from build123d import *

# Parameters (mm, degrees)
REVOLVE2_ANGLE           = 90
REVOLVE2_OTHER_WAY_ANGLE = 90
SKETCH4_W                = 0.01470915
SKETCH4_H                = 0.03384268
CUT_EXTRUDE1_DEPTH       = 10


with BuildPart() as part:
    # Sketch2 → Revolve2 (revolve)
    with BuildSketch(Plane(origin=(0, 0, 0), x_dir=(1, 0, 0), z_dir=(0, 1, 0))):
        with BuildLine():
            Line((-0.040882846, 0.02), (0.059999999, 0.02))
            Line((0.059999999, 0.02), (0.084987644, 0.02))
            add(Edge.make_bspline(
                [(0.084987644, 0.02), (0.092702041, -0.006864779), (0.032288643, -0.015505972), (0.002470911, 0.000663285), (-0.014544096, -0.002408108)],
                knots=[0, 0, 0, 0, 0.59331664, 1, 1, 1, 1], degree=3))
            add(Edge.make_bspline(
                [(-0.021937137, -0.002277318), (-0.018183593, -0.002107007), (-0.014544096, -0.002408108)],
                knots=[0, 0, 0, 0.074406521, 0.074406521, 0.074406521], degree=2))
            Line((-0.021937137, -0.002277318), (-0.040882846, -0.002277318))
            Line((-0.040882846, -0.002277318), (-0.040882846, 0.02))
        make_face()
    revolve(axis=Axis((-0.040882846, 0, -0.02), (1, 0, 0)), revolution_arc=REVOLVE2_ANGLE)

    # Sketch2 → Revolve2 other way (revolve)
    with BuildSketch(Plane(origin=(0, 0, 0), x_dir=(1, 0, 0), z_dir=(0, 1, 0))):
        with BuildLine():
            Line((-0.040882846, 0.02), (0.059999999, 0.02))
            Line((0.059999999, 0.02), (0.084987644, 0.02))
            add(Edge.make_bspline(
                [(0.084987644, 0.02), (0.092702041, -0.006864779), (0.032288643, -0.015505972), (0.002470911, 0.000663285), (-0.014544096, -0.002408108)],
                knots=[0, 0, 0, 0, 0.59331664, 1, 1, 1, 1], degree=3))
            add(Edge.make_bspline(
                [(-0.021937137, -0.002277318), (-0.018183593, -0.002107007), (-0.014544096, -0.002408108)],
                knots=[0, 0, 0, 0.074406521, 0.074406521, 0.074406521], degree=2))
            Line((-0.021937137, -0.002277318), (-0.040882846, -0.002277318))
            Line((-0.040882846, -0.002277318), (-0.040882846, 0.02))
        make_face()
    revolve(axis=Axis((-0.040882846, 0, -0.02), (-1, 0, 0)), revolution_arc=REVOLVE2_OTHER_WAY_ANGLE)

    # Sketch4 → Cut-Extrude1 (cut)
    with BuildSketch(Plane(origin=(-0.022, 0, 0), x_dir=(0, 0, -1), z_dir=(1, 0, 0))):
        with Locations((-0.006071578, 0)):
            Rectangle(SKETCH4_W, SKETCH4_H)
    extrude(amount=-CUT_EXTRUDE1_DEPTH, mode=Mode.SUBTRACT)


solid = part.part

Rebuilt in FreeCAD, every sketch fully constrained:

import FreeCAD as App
import Part
import Sketcher


def add_polygon(sketch, points):
    """Adds a closed chain of lines whose ends are joined by coincident constraints."""
    first, n = sketch.GeometryCount, len(points)
    for a, b in zip(points, points[1:] + points[:1]):
        sketch.addGeometry(Part.LineSegment(App.Vector(*a, 0), App.Vector(*b, 0)), False)
    for i in range(n):
        sketch.addConstraint(Sketcher.Constraint("Coincident", first + i, 2, first + (i + 1) % n, 1))

doc = App.newDocument("Part")
body = doc.addObject("PartDesign::Body", "Body")

# Sketch on XZ plane
sketch1 = body.newObject("Sketcher::SketchObject", "Sketch")
sketch1.AttachmentSupport = (doc.getObject("XZ_Plane"), [""])
sketch1.MapMode = "FlatFace"
sketch1.addGeometry(Part.LineSegment(App.Vector(0.084988, -0.02, 0), App.Vector(-0.040883, -0.02, 0)), False)
sketch1.addGeometry(Part.LineSegment(App.Vector(-0.040883, -0.02, 0), App.Vector(-0.040883, 0.002277, 0)), False)
sketch1.addGeometry(Part.LineSegment(App.Vector(-0.040883, 0.002277, 0), App.Vector(-0.021937, 0.002277, 0)), False)
sketch1.addGeometry(Part.BSplineCurve([App.Vector(-0.021937, 0.002277, 0), App.Vector(-0.018184, 0.002107, 0), App.Vector(-0.014544, 0.002408, 0)], [3, 3], [0, 0.074406521], False, 2, [1, 1, 1], False), False)
sketch1.addGeometry(Part.BSplineCurve([App.Vector(0.084988, -0.02, 0), App.Vector(0.092702, 0.006865, 0), App.Vector(0.032289, 0.015506, 0), App.Vector(0.002471, -0.000663, 0), App.Vector(-0.014544, 0.002408, 0)], [4, 1, 4], [0, 0.59331664, 1], False, 3, [1, 1, 1, 1, 1], False), False)
sketch1.addGeometry(Part.LineSegment(App.Vector(-0.040883, -0.02, 0), App.Vector(0.084988, -0.02, 0)), True)  # axis
sketch1.addConstraint(Sketcher.Constraint("Block", 3))
sketch1.addConstraint(Sketcher.Constraint("Block", 4))
sketch1.addConstraint(Sketcher.Constraint("Coincident", 0, 2, 1, 1))
sketch1.addConstraint(Sketcher.Constraint("Coincident", 1, 2, 2, 1))
sketch1.addConstraint(Sketcher.Constraint("Coincident", 2, 2, 3, 1))
sketch1.addConstraint(Sketcher.Constraint("Coincident", 4, 1, 0, 1))
sketch1.addConstraint(Sketcher.Constraint("Horizontal", 0))
sketch1.addConstraint(Sketcher.Constraint("Vertical", 1))
sketch1.addConstraint(Sketcher.Constraint("Horizontal", 2))
sketch1.addConstraint(Sketcher.Constraint("Horizontal", 5))
sketch1.addConstraint(Sketcher.Constraint("Coincident", 5, 1, 0, 2))
sketch1.addConstraint(Sketcher.Constraint("Equal", 0, 5))
sketch1.addConstraint(Sketcher.Constraint("DistanceX", 0, 2, 0, 1, 0.12587))
revolution = body.newObject("PartDesign::Revolution", "Revolution")
revolution.Profile = sketch1
revolution.ReferenceAxis = (sketch1, ["Axis0"])
revolution.Angle = 90

# Sketch on XZ plane
sketch2 = body.newObject("Sketcher::SketchObject", "Sketch001")
sketch2.AttachmentSupport = (doc.getObject("XZ_Plane"), [""])
sketch2.MapMode = "FlatFace"
sketch2.addGeometry(Part.LineSegment(App.Vector(0.084988, -0.02, 0), App.Vector(-0.040883, -0.02, 0)), False)
sketch2.addGeometry(Part.LineSegment(App.Vector(-0.040883, -0.02, 0), App.Vector(-0.040883, 0.002277, 0)), False)
sketch2.addGeometry(Part.LineSegment(App.Vector(-0.040883, 0.002277, 0), App.Vector(-0.021937, 0.002277, 0)), False)
sketch2.addGeometry(Part.BSplineCurve([App.Vector(-0.021937, 0.002277, 0), App.Vector(-0.018184, 0.002107, 0), App.Vector(-0.014544, 0.002408, 0)], [3, 3], [0, 0.074406521], False, 2, [1, 1, 1], False), False)
sketch2.addGeometry(Part.BSplineCurve([App.Vector(0.084988, -0.02, 0), App.Vector(0.092702, 0.006865, 0), App.Vector(0.032289, 0.015506, 0), App.Vector(0.002471, -0.000663, 0), App.Vector(-0.014544, 0.002408, 0)], [4, 1, 4], [0, 0.59331664, 1], False, 3, [1, 1, 1, 1, 1], False), False)
sketch2.addGeometry(Part.LineSegment(App.Vector(0.084988, -0.02, 0), App.Vector(-0.040883, -0.02, 0)), True)  # axis
sketch2.addConstraint(Sketcher.Constraint("Block", 3))
sketch2.addConstraint(Sketcher.Constraint("Block", 4))
sketch2.addConstraint(Sketcher.Constraint("Coincident", 0, 2, 1, 1))
sketch2.addConstraint(Sketcher.Constraint("Coincident", 1, 2, 2, 1))
sketch2.addConstraint(Sketcher.Constraint("Coincident", 2, 2, 3, 1))
sketch2.addConstraint(Sketcher.Constraint("Coincident", 4, 1, 0, 1))
sketch2.addConstraint(Sketcher.Constraint("Horizontal", 0))
sketch2.addConstraint(Sketcher.Constraint("Vertical", 1))
sketch2.addConstraint(Sketcher.Constraint("Horizontal", 2))
sketch2.addConstraint(Sketcher.Constraint("Horizontal", 5))
sketch2.addConstraint(Sketcher.Constraint("Coincident", 5, 2, 0, 2))
sketch2.addConstraint(Sketcher.Constraint("Equal", 0, 5))
sketch2.addConstraint(Sketcher.Constraint("DistanceX", 0, 2, 0, 1, 0.12587))
revolution2 = body.newObject("PartDesign::Revolution", "Revolution001")
revolution2.Profile = sketch2
revolution2.ReferenceAxis = (sketch2, ["Axis0"])
revolution2.Angle = 90

# Sketch on YZ plane
sketch3 = body.newObject("Sketcher::SketchObject", "Sketch002")
sketch3.AttachmentSupport = (doc.getObject("YZ_Plane"), [""])
sketch3.MapMode = "FlatFace"
sketch3.AttachmentOffset = App.Placement(App.Vector(0, 0, -0.022), App.Rotation())
add_polygon(sketch3, [(0.017, 0.013), (-0.017, 0.013), (-0.017, -0.001), (0.017, -0.001)])  # lines 0-3
sketch3.addConstraint(Sketcher.Constraint("Horizontal", 0))
sketch3.addConstraint(Sketcher.Constraint("Vertical", 1))
sketch3.addConstraint(Sketcher.Constraint("Horizontal", 2))
sketch3.addConstraint(Sketcher.Constraint("Vertical", 3))
sketch3.addConstraint(Sketcher.Constraint("DistanceY", 1, 2, 1, 1, 0.014709))
sketch3.addConstraint(Sketcher.Constraint("DistanceX", 0, 2, 0, 1, 0.033843))
sketch3.addConstraint(Sketcher.Constraint("DistanceX", 0, 2, -1, 1, 0.016921))
sketch3.addConstraint(Sketcher.Constraint("DistanceY", -1, 1, 0, 2, 0.013426))
pocket1 = body.newObject("PartDesign::Pocket", "Pocket")
pocket1.Profile = sketch3
pocket1.Length = 10

doc.recompute()
